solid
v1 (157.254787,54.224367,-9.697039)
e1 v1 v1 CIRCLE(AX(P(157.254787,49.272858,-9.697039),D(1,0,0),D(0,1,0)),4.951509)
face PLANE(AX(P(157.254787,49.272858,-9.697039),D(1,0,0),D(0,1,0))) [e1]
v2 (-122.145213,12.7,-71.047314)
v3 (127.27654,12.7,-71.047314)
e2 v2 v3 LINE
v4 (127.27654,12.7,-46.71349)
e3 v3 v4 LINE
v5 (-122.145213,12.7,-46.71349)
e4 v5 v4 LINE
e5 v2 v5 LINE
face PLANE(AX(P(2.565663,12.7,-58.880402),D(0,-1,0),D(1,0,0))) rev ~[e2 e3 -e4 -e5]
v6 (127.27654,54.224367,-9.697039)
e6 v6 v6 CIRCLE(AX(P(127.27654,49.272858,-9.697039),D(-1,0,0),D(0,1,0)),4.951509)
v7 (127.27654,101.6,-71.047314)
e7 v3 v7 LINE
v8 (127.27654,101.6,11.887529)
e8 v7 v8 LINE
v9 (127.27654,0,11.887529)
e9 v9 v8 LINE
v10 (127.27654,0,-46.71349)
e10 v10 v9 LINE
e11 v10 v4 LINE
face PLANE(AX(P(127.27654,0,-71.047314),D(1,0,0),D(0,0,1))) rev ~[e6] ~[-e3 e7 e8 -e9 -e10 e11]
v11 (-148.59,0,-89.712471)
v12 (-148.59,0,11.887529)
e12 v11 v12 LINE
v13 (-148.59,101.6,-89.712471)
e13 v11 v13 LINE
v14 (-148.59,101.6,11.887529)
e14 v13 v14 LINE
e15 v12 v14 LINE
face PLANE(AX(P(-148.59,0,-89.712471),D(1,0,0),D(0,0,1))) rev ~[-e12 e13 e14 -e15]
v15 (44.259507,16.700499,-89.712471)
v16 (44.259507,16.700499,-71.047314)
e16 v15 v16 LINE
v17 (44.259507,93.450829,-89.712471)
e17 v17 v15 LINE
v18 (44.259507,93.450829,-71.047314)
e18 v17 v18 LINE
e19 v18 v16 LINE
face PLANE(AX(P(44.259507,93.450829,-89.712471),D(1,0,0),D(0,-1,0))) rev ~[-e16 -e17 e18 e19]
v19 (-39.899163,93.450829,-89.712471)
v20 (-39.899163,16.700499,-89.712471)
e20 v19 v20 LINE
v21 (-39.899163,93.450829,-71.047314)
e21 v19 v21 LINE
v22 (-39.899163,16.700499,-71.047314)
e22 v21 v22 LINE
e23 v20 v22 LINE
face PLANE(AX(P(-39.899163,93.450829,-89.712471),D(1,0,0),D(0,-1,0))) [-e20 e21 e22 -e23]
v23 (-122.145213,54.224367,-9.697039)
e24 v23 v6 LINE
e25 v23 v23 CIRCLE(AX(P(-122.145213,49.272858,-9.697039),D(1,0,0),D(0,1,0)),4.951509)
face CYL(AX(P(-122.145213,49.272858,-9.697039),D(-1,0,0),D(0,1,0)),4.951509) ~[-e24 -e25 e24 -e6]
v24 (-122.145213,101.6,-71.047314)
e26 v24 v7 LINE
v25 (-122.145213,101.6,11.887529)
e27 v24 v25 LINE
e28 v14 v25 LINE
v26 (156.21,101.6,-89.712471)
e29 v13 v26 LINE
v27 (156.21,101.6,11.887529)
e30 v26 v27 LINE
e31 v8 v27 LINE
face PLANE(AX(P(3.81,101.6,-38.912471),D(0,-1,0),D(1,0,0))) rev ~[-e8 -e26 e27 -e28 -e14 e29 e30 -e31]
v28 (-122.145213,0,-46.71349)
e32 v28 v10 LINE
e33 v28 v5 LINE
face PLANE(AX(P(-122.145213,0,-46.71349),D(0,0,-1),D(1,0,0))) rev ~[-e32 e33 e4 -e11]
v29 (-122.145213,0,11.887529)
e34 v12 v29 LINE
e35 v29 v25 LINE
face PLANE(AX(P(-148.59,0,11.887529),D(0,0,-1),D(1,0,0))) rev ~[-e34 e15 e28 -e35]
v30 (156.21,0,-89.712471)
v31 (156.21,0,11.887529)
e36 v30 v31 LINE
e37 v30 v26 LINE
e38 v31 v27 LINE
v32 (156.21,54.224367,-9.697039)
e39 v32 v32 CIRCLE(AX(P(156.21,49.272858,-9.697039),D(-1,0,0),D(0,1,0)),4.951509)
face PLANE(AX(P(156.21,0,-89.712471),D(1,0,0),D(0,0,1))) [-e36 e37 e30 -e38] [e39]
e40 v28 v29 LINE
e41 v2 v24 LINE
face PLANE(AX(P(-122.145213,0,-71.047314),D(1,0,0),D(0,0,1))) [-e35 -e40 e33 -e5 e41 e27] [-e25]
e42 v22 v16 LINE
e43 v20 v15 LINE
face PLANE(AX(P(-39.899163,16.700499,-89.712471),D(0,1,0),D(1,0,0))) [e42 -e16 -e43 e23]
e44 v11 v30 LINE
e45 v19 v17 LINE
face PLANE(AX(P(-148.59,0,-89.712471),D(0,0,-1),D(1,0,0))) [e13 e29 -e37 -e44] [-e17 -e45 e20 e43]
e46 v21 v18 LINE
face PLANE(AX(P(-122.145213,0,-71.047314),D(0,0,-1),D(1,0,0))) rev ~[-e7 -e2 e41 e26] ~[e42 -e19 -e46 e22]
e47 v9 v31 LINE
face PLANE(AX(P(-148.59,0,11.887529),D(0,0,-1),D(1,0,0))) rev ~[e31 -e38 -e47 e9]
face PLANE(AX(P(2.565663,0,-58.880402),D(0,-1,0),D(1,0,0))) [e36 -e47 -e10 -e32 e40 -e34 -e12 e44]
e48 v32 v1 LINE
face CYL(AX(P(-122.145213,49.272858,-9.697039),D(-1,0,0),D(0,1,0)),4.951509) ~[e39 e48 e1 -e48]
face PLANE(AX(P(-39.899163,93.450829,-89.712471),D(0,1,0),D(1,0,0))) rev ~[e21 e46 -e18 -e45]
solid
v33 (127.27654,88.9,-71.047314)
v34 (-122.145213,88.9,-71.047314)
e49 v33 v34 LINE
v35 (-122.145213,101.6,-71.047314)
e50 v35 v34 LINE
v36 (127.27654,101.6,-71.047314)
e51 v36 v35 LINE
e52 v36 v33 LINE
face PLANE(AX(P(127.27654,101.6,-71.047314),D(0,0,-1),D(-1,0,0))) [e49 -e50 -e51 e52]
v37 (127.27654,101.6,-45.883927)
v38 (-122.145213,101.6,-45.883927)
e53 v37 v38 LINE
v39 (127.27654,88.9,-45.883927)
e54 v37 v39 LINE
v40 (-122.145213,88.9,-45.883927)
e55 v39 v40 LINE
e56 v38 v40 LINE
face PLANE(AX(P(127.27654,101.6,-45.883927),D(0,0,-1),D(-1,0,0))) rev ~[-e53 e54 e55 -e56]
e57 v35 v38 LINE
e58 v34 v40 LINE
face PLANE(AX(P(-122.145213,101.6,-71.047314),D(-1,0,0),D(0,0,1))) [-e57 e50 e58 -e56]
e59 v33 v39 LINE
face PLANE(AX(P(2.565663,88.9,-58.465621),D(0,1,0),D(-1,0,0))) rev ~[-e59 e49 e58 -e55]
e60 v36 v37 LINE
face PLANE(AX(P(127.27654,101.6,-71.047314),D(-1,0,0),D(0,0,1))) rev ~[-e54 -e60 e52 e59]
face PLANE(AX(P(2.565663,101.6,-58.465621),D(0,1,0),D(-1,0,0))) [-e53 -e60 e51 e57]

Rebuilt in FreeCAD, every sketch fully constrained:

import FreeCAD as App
import Part
import Sketcher

V = App.Vector
Q = App.Units.Quantity


def add_polygon(sketch, points):
    """Adds a closed chain of lines whose ends are joined by coincident constraints."""
    first, n = sketch.GeometryCount, len(points)
    for a, b in zip(points, points[1:] + points[:1]):
        sketch.addGeometry(Part.LineSegment(App.Vector(*a, 0), App.Vector(*b, 0)), False)
    for i in range(n):
        sketch.addConstraint(Sketcher.Constraint("Coincident", first + i, 2, first + (i + 1) % n, 1))

doc = App.newDocument("Part")
params = doc.addObject("Spreadsheet::Sheet", "Params")
for row, (alias, value) in enumerate([
    ("sketch1_width", "12 in"),
    ("sketch1_height", "4 in"),
    ("pad1_length", "4 in"),
    ("pocket1_length", "4 in"),
    ("pocket2_length", "1 in"),
    ("pad2_length", "0.5 in"),
    ("pad3_length", "11 in"),
    ("pad4_length", "0.5 in"),
], start=1):
    params.set(f"A{row}", alias)
    params.set(f"B{row}", "=" + value)
    params.setAlias(f"B{row}", alias)

body = doc.addObject("PartDesign::Body", "Body")

# Sketch on XZ plane
sketch1 = body.newObject("Sketcher::SketchObject", "Sketch")
sketch1.AttachmentSupport = (doc.getObject("XZ_Plane"), [""])
sketch1.MapMode = "FlatFace"
add_polygon(sketch1, [(-148.59, 11.887529), (-148.59, -89.712471), (156.21, -89.712471), (156.21, 11.887529)])  # lines 0-3
sketch1.addConstraint([
    Sketcher.Constraint("Vertical", 0),
    Sketcher.Constraint("Horizontal", 1),
    Sketcher.Constraint("Vertical", 2),
    Sketcher.Constraint("Horizontal", 3),
    Sketcher.Constraint("DistanceX", 1, 1, 1, 2, Q("12 in")),
    Sketcher.Constraint("DistanceY", 0, 2, 0, 1, Q("4 in")),
    Sketcher.Constraint("DistanceX", 0, 2, -1, 1, Q("5.85 in")),
    Sketcher.Constraint("DistanceY", 0, 2, -1, 1, Q("89.712471 mm")),
])
sketch1.setExpression("Constraints[8]", "Params.sketch1_width")
sketch1.setExpression("Constraints[9]", "Params.sketch1_height")
pad1 = body.newObject("PartDesign::Pad", "Pad")
pad1.Profile = sketch1
pad1.setExpression("Length", "Params.pad1_length")
pad1.Reversed = True

# Sketch on XZ plane
sketch2 = body.newObject("Sketcher::SketchObject", "Sketch001")
sketch2.AttachmentSupport = (doc.getObject("XZ_Plane"), [""])
sketch2.MapMode = "FlatFace"
add_polygon(sketch2, [(-122.145213, 11.887529), (-122.145213, -71.047314), (127.27654, -71.047314), (127.27654, 11.887529)])  # lines 0-3
sketch2.addConstraint([
    Sketcher.Constraint("Vertical", 0),
    Sketcher.Constraint("Horizontal", 1),
    Sketcher.Constraint("Vertical", 2),
    Sketcher.Constraint("Horizontal", 3),
    Sketcher.Constraint("DistanceX", 1, 1, 1, 2, Q("249.421753 mm")),
    Sketcher.Constraint("DistanceY", 0, 2, 0, 1, Q("82.934843 mm")),
    Sketcher.Constraint("DistanceX", -1, 1, 1, 2, Q("127.27654 mm")),
    Sketcher.Constraint("DistanceY", -1, 1, 2, 2, Q("11.887529 mm")),
])
pocket1 = body.newObject("PartDesign::Pocket", "Pocket")
pocket1.Profile = sketch2
pocket1.setExpression("Length", "Params.pocket1_length")

# Sketch on XY plane
sketch3 = body.newObject("Sketcher::SketchObject", "Sketch002")
sketch3.AttachmentSupport = (doc.getObject("XY_Plane"), [""])
sketch3.MapMode = "FlatFace"
sketch3.AttachmentOffset = App.Placement(V(0, 0, -89.712471), App.Rotation())
add_polygon(sketch3, [(-39.899163, 16.700499), (-39.899163, 93.450829), (44.259507, 93.450829), (44.259507, 16.700499)])  # lines 0-3
sketch3.addConstraint([
    Sketcher.Constraint("Vertical", 0),
    Sketcher.Constraint("Horizontal", 1),
    Sketcher.Constraint("Vertical", 2),
    Sketcher.Constraint("Horizontal", 3),
    Sketcher.Constraint("DistanceY", -1, 1, 2, 2, Q("0.6575 in")),
    Sketcher.Constraint("DistanceX", 1, 1, 1, 2, Q("84.15867 mm")),
    Sketcher.Constraint("DistanceY", 0, 1, 0, 2, Q("76.750331 mm")),
    Sketcher.Constraint("DistanceX", 0, 2, -1, 1, Q("39.899163 mm")),
])
pocket2 = body.newObject("PartDesign::Pocket", "Pocket001")
pocket2.Profile = sketch3
pocket2.setExpression("Length", "Params.pocket2_length")
pocket2.Reversed = True

# Sketch on XZ plane
sketch4 = body.newObject("Sketcher::SketchObject", "Sketch003")
sketch4.AttachmentSupport = (doc.getObject("XZ_Plane"), [""])
sketch4.MapMode = "FlatFace"
add_polygon(sketch4, [(-122.145213, -46.71349), (-122.145213, -71.047314), (127.27654, -71.047314), (127.27654, -46.71349)])  # lines 0-3
sketch4.addConstraint([
    Sketcher.Constraint("Vertical", 0),
    Sketcher.Constraint("Horizontal", 1),
    Sketcher.Constraint("Vertical", 2),
    Sketcher.Constraint("Horizontal", 3),
    Sketcher.Constraint("DistanceX", 1, 1, 1, 2, Q("249.421753 mm")),
    Sketcher.Constraint("DistanceY", 0, 2, 0, 1, Q("24.333823 mm")),
    Sketcher.Constraint("DistanceX", -1, 1, 1, 2, Q("127.27654 mm")),
    Sketcher.Constraint("DistanceY", 2, 2, -1, 1, Q("46.71349 mm")),
])
pad2 = body.newObject("PartDesign::Pad", "Pad001")
pad2.Profile = sketch4
pad2.setExpression("Length", "Params.pad2_length")
pad2.Reversed = True

# Sketch on YZ plane
sketch5 = body.newObject("Sketcher::SketchObject", "Sketch004")
sketch5.AttachmentSupport = (doc.getObject("YZ_Plane"), [""])
sketch5.MapMode = "FlatFace"
sketch5.AttachmentOffset = App.Placement(V(0, 0, -122.145213), App.Rotation())
sketch5.addGeometry(Part.Circle(V(49.272858, -9.697039, 0), V(0, 0, 1), 4.951509), False)
sketch5.addConstraint([
    Sketcher.Constraint("Diameter", 0, Q("9.903019 mm")),
    Sketcher.Constraint("DistanceY", 0, 3, -1, 1, Q("9.697039 mm")),
    Sketcher.Constraint("DistanceX", -1, 1, 0, 3, Q("49.272858 mm")),
])
pad3 = body.newObject("PartDesign::Pad", "Pad002")
pad3.Profile = sketch5
pad3.setExpression("Length", "Params.pad3_length")
body2 = doc.addObject("PartDesign::Body", "Body001")

# Sketch on XZ plane
sketch6 = body2.newObject("Sketcher::SketchObject", "Sketch005")
sketch6.AttachmentSupport = (doc.getObject("XZ_Plane001"), [""])
sketch6.MapMode = "FlatFace"
sketch6.AttachmentOffset = App.Placement(V(0, 0, -4 * 25.4), App.Rotation())
add_polygon(sketch6, [(127.27654, -45.883927), (127.27654, -71.047314), (-122.145213, -71.047314), (-122.145213, -45.883927)])  # lines 0-3
sketch6.addConstraint([
    Sketcher.Constraint("Vertical", 0),
    Sketcher.Constraint("Horizontal", 1),
    Sketcher.Constraint("Vertical", 2),
    Sketcher.Constraint("Horizontal", 3),
    Sketcher.Constraint("DistanceX", 1, 2, 1, 1, Q("249.421753 mm")),
    Sketcher.Constraint("DistanceY", 0, 2, 0, 1, Q("25.163386 mm")),
    Sketcher.Constraint("DistanceX", -1, 1, 0, 2, Q("127.27654 mm")),
    Sketcher.Constraint("DistanceY", 0, 2, -1, 1, Q("71.047314 mm")),
])
pad4 = body2.newObject("PartDesign::Pad", "Pad003")
pad4.Profile = sketch6
pad4.setExpression("Length", "Params.pad4_length")

doc.recompute()
